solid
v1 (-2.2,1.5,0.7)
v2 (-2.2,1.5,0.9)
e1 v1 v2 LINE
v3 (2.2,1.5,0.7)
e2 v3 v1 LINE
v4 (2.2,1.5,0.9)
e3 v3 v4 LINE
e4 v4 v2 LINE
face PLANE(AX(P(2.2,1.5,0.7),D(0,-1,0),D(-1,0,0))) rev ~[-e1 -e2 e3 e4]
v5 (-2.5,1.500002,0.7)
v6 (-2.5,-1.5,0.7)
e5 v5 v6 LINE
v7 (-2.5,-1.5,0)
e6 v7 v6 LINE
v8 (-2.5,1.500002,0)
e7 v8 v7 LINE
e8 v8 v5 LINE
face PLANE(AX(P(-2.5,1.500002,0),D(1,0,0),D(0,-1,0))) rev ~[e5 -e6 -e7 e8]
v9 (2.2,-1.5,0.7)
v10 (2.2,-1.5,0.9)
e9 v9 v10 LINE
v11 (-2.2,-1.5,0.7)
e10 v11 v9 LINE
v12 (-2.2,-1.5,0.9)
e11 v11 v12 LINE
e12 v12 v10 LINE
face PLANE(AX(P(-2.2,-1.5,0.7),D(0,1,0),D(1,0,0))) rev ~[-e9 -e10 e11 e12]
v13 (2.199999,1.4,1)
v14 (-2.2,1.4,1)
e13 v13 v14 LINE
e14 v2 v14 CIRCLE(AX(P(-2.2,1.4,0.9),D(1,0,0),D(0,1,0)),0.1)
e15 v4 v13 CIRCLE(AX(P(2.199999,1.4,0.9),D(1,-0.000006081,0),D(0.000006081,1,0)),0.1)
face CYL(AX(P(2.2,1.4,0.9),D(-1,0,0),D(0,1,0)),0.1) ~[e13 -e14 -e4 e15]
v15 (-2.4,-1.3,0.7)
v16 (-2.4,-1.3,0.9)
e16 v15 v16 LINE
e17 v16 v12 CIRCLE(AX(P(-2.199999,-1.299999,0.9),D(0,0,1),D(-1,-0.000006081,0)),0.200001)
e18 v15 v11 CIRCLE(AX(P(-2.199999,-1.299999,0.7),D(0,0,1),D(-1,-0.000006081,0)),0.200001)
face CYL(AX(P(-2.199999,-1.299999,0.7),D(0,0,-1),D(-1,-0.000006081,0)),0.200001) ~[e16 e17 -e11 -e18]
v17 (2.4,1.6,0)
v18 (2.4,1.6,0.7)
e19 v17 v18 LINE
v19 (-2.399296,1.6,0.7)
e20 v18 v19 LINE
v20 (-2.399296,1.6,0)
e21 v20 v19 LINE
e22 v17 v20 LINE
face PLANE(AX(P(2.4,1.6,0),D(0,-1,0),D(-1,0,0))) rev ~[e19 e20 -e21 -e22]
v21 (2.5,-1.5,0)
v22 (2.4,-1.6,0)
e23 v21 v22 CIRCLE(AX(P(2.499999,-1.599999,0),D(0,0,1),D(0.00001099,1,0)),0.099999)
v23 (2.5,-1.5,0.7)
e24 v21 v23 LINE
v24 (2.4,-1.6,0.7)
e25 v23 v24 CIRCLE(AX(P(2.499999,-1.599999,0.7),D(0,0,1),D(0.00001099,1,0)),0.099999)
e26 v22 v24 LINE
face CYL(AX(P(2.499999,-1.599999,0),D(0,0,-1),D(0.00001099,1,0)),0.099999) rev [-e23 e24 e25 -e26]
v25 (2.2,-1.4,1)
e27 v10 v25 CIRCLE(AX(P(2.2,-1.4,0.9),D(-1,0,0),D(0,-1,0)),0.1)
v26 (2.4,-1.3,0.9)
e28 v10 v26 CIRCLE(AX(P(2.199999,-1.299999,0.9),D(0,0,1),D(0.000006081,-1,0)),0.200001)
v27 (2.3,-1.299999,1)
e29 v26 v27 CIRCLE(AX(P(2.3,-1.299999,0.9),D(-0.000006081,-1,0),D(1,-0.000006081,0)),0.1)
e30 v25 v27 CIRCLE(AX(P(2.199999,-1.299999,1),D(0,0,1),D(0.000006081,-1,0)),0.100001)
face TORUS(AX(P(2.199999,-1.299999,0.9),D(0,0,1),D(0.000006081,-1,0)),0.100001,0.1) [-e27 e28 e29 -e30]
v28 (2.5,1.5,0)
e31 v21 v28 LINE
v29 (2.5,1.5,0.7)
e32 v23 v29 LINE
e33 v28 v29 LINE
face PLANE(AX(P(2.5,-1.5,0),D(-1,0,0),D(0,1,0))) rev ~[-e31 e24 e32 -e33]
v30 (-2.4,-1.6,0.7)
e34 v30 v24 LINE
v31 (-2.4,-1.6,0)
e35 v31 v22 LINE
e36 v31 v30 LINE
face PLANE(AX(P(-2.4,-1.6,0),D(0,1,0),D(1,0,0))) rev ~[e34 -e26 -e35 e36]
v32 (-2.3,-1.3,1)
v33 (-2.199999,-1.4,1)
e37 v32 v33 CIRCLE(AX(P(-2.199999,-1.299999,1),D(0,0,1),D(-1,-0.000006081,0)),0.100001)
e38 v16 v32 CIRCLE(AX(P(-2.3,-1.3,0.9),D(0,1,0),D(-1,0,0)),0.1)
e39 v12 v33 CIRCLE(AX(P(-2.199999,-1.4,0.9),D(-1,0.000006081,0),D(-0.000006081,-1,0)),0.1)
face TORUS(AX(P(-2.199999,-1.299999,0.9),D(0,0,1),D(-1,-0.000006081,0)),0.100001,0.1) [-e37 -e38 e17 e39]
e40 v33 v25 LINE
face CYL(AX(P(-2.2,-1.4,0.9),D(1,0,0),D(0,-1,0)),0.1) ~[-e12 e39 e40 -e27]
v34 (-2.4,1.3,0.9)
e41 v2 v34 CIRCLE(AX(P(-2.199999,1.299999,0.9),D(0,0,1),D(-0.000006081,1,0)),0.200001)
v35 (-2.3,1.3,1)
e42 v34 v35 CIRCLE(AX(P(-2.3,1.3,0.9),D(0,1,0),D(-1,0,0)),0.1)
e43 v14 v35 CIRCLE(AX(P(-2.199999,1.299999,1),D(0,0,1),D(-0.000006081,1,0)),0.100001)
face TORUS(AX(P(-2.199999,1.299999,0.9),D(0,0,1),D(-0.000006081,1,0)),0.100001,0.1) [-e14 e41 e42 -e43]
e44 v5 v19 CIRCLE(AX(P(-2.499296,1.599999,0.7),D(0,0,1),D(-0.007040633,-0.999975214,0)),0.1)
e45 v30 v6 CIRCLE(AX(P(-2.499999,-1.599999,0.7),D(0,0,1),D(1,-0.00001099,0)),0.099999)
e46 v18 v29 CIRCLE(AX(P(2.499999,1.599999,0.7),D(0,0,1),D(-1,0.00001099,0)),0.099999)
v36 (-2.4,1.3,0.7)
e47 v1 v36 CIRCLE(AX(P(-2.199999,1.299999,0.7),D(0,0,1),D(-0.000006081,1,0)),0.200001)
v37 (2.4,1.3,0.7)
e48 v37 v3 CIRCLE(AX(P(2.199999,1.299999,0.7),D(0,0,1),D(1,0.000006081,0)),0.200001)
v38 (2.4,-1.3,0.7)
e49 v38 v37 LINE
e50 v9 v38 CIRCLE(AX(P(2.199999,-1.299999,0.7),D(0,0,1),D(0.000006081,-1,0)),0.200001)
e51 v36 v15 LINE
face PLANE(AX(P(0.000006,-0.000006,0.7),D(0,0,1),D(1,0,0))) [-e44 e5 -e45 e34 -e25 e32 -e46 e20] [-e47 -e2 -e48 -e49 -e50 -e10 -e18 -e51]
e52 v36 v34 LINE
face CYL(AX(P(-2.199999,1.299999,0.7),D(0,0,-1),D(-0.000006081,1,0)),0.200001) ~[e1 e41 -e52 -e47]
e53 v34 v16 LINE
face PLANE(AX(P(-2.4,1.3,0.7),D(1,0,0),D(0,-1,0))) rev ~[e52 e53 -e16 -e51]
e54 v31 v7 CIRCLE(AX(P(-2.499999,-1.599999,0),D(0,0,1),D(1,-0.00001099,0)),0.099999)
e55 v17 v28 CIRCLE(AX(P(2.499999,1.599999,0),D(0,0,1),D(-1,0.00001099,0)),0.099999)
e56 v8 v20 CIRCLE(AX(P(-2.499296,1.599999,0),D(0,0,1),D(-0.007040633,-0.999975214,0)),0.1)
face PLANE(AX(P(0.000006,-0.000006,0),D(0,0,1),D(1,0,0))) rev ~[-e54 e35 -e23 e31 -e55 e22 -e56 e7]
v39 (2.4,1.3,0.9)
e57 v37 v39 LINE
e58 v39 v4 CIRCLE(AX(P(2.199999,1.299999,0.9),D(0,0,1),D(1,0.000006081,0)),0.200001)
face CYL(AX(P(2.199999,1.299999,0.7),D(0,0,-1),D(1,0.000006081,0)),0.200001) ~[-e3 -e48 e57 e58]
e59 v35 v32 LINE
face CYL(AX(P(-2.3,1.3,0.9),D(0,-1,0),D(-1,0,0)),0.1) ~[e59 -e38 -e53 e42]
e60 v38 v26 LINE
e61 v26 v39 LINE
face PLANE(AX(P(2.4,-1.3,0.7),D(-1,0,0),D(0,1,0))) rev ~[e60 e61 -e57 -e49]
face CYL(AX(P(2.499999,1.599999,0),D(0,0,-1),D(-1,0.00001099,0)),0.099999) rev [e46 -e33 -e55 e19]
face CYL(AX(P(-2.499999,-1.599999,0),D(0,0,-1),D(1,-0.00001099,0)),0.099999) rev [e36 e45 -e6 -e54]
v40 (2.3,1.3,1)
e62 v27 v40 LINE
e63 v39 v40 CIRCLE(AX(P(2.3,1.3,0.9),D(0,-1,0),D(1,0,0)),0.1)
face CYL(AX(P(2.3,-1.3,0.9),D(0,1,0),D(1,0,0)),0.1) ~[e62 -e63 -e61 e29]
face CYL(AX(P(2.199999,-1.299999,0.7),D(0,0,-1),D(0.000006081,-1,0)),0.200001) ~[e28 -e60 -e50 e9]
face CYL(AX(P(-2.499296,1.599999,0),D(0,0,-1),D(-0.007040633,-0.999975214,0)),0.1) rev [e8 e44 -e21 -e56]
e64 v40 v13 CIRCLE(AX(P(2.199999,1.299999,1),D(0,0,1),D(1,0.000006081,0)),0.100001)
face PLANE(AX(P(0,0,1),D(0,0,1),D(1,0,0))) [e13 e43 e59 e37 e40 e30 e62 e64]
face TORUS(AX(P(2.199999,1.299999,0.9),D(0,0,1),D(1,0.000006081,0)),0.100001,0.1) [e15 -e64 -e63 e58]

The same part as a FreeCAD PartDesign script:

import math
import FreeCAD as App
import Part
import Sketcher
from FreeCAD import Vector
Q = App.Units.Quantity


def edges_at(feature, points):
    """Names of the edges that pass closest to the given points."""
    edges = feature.Shape.Edges
    near = lambda p: min(range(len(edges)), key=lambda i: edges[i].distToShape(Part.Vertex(*p))[0])
    return sorted({f"Edge{near(p) + 1}" for p in points})

doc = App.newDocument("Part")
body = doc.addObject("PartDesign::Body", "Body")

# Sketch on XY plane
sketch1 = body.newObject("Sketcher::SketchObject", "Sketch")
sketch1.AttachmentSupport = (doc.getObject("XY_Plane"), [""])
sketch1.MapMode = "FlatFace"
sketch1.addGeometry(Part.LineSegment(Vector(-2.5, 1.5, 0), Vector(-2.5, -1.5, 0)), False)
sketch1.addGeometry(Part.ArcOfCircle(Part.Circle(Vector(-2.5, -1.6, 0), Vector(0, 0, 1), 0.1), math.radians(0), math.radians(90)), False)
sketch1.addGeometry(Part.LineSegment(Vector(-2.4, -1.6, 0), Vector(2.4, -1.6, 0)), False)
sketch1.addGeometry(Part.ArcOfCircle(Part.Circle(Vector(2.5, -1.6, 0), Vector(0, 0, 1), 0.1), math.radians(90), math.radians(180)), False)
sketch1.addGeometry(Part.LineSegment(Vector(2.5, -1.5, 0), Vector(2.5, 1.5, 0)), False)
sketch1.addGeometry(Part.ArcOfCircle(Part.Circle(Vector(2.5, 1.6, 0), Vector(0, 0, 1), 0.1), math.radians(180), math.radians(270)), False)
sketch1.addGeometry(Part.LineSegment(Vector(2.4, 1.6, 0), Vector(-2.4, 1.6, 0)), False)
sketch1.addGeometry(Part.ArcOfCircle(Part.Circle(Vector(-2.5, 1.6, 0), Vector(0, 0, 1), 0.1), math.radians(-90), math.radians(0)), False)
sketch1.addConstraint(Sketcher.Constraint("Coincident", 0, 2, 1, 2))
sketch1.addConstraint(Sketcher.Constraint("Coincident", 1, 1, 2, 1))
sketch1.addConstraint(Sketcher.Constraint("Coincident", 2, 2, 3, 2))
sketch1.addConstraint(Sketcher.Constraint("Coincident", 3, 1, 4, 1))
sketch1.addConstraint(Sketcher.Constraint("Coincident", 4, 2, 5, 2))
sketch1.addConstraint(Sketcher.Constraint("Coincident", 5, 1, 6, 1))
sketch1.addConstraint(Sketcher.Constraint("Coincident", 6, 2, 7, 2))
sketch1.addConstraint(Sketcher.Constraint("Coincident", 7, 1, 0, 1))
sketch1.addConstraint(Sketcher.Constraint("Vertical", 0))
sketch1.addConstraint(Sketcher.Constraint("Horizontal", 2))
sketch1.addConstraint(Sketcher.Constraint("Vertical", 4))
sketch1.addConstraint(Sketcher.Constraint("Horizontal", 6))
sketch1.addConstraint(Sketcher.Constraint("Equal", 1, 3))
sketch1.addConstraint(Sketcher.Constraint("Equal", 3, 5))
sketch1.addConstraint(Sketcher.Constraint("Equal", 5, 7))
sketch1.addConstraint(Sketcher.Constraint("Symmetric", 1, 3, 5, 3, -1, 1))
sketch1.addConstraint(Sketcher.Constraint("Symmetric", 3, 1, 7, 1, -1, 1))
sketch1.addConstraint(Sketcher.Constraint("Symmetric", 1, 3, 3, 3, -2))
sketch1.addConstraint(Sketcher.Constraint("Horizontal", 3, 3, 1, 1))
sketch1.addConstraint(Sketcher.Constraint("Horizontal", 7, 3, 5, 1))
sketch1.addConstraint(Sketcher.Constraint("Vertical", 1, 3, 0, 2))
sketch1.addConstraint(Sketcher.Constraint("Radius", 1, Q("0.099999 mm")))
sketch1.addConstraint(Sketcher.Constraint("DistanceY", 4, 1, 4, 2, Q("3 mm")))
sketch1.addConstraint(Sketcher.Constraint("DistanceX", 2, 1, 2, 2, Q("4.8 mm")))
sketch1.addConstraint(Sketcher.Constraint("DistanceX", 6, 2, 6, 1, Q("4.799296 mm")))
pad1 = body.newObject("PartDesign::Pad", "Pad")
pad1.Profile = sketch1
pad1.Length = 0.7

# Sketch on XY plane
sketch2 = body.newObject("Sketcher::SketchObject", "Sketch001")
sketch2.AttachmentSupport = (doc.getObject("XY_Plane"), [""])
sketch2.MapMode = "FlatFace"
sketch2.AttachmentOffset = App.Placement(Vector(0, 0, 0.7), App.Rotation())
sketch2.addGeometry(Part.LineSegment(Vector(-2.4, 1.3, 0), Vector(-2.4, -1.3, 0)), False)
sketch2.addGeometry(Part.ArcOfCircle(Part.Circle(Vector(-2.2, -1.3, 0), Vector(0, 0, 1), 0.2), math.radians(-180), math.radians(-90)), False)
sketch2.addGeometry(Part.LineSegment(Vector(-2.2, -1.5, 0), Vector(2.2, -1.5, 0)), False)
sketch2.addGeometry(Part.ArcOfCircle(Part.Circle(Vector(2.2, -1.3, 0), Vector(0, 0, 1), 0.2), math.radians(-90), math.radians(0)), False)
sketch2.addGeometry(Part.LineSegment(Vector(2.4, -1.3, 0), Vector(2.4, 1.3, 0)), False)
sketch2.addGeometry(Part.ArcOfCircle(Part.Circle(Vector(2.2, 1.3, 0), Vector(0, 0, 1), 0.2), math.radians(0), math.radians(90)), False)
sketch2.addGeometry(Part.LineSegment(Vector(2.2, 1.5, 0), Vector(-2.2, 1.5, 0)), False)
sketch2.addGeometry(Part.ArcOfCircle(Part.Circle(Vector(-2.2, 1.3, 0), Vector(0, 0, 1), 0.2), math.radians(90), math.radians(180)), False)
sketch2.addConstraint(Sketcher.Constraint("Coincident", 0, 2, 1, 1))
sketch2.addConstraint(Sketcher.Constraint("Coincident", 1, 2, 2, 1))
sketch2.addConstraint(Sketcher.Constraint("Coincident", 2, 2, 3, 1))
sketch2.addConstraint(Sketcher.Constraint("Coincident", 3, 2, 4, 1))
sketch2.addConstraint(Sketcher.Constraint("Coincident", 4, 2, 5, 1))
sketch2.addConstraint(Sketcher.Constraint("Coincident", 5, 2, 6, 1))
sketch2.addConstraint(Sketcher.Constraint("Coincident", 6, 2, 7, 1))
sketch2.addConstraint(Sketcher.Constraint("Coincident", 7, 2, 0, 1))
sketch2.addConstraint(Sketcher.Constraint("Vertical", 0))
sketch2.addConstraint(Sketcher.Constraint("Horizontal", 2))
sketch2.addConstraint(Sketcher.Constraint("Vertical", 4))
sketch2.addConstraint(Sketcher.Constraint("Horizontal", 6))
sketch2.addConstraint(Sketcher.Constraint("Equal", 1, 3))
sketch2.addConstraint(Sketcher.Constraint("Equal", 3, 5))
sketch2.addConstraint(Sketcher.Constraint("Equal", 5, 7))
sketch2.addConstraint(Sketcher.Constraint("Symmetric", 1, 3, 5, 3, -1, 1))
sketch2.addConstraint(Sketcher.Constraint("Horizontal", 3, 3, 0, 2))
sketch2.addConstraint(Sketcher.Constraint("Horizontal", 0, 2, 3, 2))
sketch2.addConstraint(Sketcher.Constraint("Horizontal", 7, 3, 4, 2))
sketch2.addConstraint(Sketcher.Constraint("Horizontal", 4, 2, 7, 2))
sketch2.addConstraint(Sketcher.Constraint("Vertical", 7, 3, 1, 2))
sketch2.addConstraint(Sketcher.Constraint("Vertical", 5, 3, 2, 2))
sketch2.addConstraint(Sketcher.Constraint("Vertical", 2, 2, 5, 2))
sketch2.addConstraint(Sketcher.Constraint("Vertical", 1, 2, 6, 2))
sketch2.addConstraint(Sketcher.Constraint("Radius", 1, Q("0.200001 mm")))
sketch2.addConstraint(Sketcher.Constraint("DistanceX", 2, 1, 2, 2, Q("4.4 mm")))
sketch2.addConstraint(Sketcher.Constraint("DistanceY", 0, 2, 0, 1, Q("2.6 mm")))
pad2 = body.newObject("PartDesign::Pad", "Pad001")
pad2.Profile = sketch2
pad2.Length = 0.3
doc.recompute()

fillet = body.newObject("PartDesign::Fillet", "Fillet")
fillet.Base = (pad2, edges_at(pad2, [
    (-2.4, 0, 1),
    (-2.341, -1.441, 1),
    (0, -1.5, 1),
    (2.341, -1.441, 1),
    (2.4, 0, 1),
    (2.341, 1.441, 1),
    (0, 1.5, 1),
    (-2.341, 1.441, 1),
]))
fillet.Radius = 0.1

doc.recompute()
